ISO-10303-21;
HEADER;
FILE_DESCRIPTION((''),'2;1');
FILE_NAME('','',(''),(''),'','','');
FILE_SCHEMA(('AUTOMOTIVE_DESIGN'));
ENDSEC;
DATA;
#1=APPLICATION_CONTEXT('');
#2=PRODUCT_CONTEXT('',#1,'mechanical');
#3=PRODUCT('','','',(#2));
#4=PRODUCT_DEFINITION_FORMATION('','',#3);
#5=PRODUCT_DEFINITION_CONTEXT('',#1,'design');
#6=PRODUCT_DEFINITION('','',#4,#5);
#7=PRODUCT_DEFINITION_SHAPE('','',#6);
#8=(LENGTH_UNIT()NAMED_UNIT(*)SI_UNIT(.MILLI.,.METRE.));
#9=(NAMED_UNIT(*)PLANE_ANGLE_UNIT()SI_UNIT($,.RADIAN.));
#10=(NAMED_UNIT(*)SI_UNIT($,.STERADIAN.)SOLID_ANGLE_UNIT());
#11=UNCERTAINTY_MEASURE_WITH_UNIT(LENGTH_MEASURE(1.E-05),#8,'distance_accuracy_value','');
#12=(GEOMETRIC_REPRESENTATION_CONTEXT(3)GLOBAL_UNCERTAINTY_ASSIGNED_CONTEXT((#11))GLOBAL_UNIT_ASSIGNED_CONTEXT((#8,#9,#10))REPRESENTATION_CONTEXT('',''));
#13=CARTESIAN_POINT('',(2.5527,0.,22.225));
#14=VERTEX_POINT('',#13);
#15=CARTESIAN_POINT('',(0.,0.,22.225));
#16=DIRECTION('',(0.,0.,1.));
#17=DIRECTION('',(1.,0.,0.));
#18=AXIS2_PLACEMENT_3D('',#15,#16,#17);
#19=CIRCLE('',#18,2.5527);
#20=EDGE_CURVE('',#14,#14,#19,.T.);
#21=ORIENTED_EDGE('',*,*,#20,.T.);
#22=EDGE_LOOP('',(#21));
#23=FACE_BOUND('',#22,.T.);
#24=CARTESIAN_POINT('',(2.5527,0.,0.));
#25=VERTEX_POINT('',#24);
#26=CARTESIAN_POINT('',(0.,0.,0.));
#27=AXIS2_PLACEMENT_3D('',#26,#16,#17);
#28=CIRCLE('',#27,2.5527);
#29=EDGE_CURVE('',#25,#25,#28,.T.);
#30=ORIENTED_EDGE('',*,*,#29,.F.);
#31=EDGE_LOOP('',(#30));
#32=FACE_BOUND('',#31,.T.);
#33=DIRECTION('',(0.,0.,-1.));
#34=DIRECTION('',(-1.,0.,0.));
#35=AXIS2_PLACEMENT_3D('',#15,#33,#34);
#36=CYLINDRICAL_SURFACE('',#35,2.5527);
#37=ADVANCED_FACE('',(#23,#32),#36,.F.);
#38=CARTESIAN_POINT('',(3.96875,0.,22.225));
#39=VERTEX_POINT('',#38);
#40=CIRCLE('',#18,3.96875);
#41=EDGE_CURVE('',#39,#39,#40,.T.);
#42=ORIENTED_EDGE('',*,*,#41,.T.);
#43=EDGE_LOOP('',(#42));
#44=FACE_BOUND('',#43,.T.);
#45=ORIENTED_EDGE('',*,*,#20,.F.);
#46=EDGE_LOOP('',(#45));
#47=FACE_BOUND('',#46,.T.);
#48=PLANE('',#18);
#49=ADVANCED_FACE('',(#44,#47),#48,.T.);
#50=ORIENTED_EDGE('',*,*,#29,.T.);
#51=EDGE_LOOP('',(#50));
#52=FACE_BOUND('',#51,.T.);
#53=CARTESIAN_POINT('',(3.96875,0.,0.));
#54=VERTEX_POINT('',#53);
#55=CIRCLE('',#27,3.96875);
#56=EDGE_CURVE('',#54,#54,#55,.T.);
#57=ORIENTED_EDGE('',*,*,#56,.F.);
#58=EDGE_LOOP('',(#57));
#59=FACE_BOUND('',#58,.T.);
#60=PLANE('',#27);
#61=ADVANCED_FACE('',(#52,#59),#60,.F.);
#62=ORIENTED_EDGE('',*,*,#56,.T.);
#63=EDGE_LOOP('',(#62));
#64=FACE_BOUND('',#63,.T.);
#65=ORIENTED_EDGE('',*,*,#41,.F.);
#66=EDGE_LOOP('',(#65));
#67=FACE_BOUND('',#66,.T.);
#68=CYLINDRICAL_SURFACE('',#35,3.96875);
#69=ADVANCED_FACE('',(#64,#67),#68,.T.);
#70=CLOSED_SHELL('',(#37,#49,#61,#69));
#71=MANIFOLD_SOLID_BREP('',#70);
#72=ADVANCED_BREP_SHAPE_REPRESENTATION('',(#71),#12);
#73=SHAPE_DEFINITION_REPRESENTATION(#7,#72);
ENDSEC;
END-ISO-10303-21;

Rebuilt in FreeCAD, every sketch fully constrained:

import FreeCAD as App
import Part
import Sketcher

V = App.Vector
Q = App.Units.Quantity

doc = App.newDocument("Part")
params = doc.addObject("Spreadsheet::Sheet", "Params")
for row, (alias, value) in enumerate([
    ("sketch1_diameter", "0.3125 in"),
    ("sketch1_diameter2", "0.201 in"),
    ("pad1_length", "0.875 in"),
], start=1):
    params.set(f"A{row}", alias)
    params.set(f"B{row}", "=" + value)
    params.setAlias(f"B{row}", alias)

body = doc.addObject("PartDesign::Body", "Body")

# Sketch on XY plane
sketch1 = body.newObject("Sketcher::SketchObject", "Sketch")
sketch1.AttachmentSupport = (doc.getObject("XY_Plane"), [""])
sketch1.MapMode = "FlatFace"
sketch1.addGeometry(Part.Circle(V(0, 0, 0), V(0, 0, 1), 3.96875), False)
sketch1.addGeometry(Part.Circle(V(0, 0, 0), V(0, 0, 1), 2.5527), False)
sketch1.addConstraint(Sketcher.Constraint("Coincident", 0, 3, -1, 1))
sketch1.addConstraint(Sketcher.Constraint("Coincident", 1, 3, -1, 1))
sketch1.addConstraint(Sketcher.Constraint("Diameter", 0, Q("0.3125 in")))
sketch1.addConstraint(Sketcher.Constraint("Diameter", 1, Q("0.201 in")))
sketch1.setExpression("Constraints[2]", "Params.sketch1_diameter")
sketch1.setExpression("Constraints[3]", "Params.sketch1_diameter2")
pad1 = body.newObject("PartDesign::Pad", "Pad")
pad1.Profile = sketch1
pad1.setExpression("Length", "Params.pad1_length")

doc.recompute()
